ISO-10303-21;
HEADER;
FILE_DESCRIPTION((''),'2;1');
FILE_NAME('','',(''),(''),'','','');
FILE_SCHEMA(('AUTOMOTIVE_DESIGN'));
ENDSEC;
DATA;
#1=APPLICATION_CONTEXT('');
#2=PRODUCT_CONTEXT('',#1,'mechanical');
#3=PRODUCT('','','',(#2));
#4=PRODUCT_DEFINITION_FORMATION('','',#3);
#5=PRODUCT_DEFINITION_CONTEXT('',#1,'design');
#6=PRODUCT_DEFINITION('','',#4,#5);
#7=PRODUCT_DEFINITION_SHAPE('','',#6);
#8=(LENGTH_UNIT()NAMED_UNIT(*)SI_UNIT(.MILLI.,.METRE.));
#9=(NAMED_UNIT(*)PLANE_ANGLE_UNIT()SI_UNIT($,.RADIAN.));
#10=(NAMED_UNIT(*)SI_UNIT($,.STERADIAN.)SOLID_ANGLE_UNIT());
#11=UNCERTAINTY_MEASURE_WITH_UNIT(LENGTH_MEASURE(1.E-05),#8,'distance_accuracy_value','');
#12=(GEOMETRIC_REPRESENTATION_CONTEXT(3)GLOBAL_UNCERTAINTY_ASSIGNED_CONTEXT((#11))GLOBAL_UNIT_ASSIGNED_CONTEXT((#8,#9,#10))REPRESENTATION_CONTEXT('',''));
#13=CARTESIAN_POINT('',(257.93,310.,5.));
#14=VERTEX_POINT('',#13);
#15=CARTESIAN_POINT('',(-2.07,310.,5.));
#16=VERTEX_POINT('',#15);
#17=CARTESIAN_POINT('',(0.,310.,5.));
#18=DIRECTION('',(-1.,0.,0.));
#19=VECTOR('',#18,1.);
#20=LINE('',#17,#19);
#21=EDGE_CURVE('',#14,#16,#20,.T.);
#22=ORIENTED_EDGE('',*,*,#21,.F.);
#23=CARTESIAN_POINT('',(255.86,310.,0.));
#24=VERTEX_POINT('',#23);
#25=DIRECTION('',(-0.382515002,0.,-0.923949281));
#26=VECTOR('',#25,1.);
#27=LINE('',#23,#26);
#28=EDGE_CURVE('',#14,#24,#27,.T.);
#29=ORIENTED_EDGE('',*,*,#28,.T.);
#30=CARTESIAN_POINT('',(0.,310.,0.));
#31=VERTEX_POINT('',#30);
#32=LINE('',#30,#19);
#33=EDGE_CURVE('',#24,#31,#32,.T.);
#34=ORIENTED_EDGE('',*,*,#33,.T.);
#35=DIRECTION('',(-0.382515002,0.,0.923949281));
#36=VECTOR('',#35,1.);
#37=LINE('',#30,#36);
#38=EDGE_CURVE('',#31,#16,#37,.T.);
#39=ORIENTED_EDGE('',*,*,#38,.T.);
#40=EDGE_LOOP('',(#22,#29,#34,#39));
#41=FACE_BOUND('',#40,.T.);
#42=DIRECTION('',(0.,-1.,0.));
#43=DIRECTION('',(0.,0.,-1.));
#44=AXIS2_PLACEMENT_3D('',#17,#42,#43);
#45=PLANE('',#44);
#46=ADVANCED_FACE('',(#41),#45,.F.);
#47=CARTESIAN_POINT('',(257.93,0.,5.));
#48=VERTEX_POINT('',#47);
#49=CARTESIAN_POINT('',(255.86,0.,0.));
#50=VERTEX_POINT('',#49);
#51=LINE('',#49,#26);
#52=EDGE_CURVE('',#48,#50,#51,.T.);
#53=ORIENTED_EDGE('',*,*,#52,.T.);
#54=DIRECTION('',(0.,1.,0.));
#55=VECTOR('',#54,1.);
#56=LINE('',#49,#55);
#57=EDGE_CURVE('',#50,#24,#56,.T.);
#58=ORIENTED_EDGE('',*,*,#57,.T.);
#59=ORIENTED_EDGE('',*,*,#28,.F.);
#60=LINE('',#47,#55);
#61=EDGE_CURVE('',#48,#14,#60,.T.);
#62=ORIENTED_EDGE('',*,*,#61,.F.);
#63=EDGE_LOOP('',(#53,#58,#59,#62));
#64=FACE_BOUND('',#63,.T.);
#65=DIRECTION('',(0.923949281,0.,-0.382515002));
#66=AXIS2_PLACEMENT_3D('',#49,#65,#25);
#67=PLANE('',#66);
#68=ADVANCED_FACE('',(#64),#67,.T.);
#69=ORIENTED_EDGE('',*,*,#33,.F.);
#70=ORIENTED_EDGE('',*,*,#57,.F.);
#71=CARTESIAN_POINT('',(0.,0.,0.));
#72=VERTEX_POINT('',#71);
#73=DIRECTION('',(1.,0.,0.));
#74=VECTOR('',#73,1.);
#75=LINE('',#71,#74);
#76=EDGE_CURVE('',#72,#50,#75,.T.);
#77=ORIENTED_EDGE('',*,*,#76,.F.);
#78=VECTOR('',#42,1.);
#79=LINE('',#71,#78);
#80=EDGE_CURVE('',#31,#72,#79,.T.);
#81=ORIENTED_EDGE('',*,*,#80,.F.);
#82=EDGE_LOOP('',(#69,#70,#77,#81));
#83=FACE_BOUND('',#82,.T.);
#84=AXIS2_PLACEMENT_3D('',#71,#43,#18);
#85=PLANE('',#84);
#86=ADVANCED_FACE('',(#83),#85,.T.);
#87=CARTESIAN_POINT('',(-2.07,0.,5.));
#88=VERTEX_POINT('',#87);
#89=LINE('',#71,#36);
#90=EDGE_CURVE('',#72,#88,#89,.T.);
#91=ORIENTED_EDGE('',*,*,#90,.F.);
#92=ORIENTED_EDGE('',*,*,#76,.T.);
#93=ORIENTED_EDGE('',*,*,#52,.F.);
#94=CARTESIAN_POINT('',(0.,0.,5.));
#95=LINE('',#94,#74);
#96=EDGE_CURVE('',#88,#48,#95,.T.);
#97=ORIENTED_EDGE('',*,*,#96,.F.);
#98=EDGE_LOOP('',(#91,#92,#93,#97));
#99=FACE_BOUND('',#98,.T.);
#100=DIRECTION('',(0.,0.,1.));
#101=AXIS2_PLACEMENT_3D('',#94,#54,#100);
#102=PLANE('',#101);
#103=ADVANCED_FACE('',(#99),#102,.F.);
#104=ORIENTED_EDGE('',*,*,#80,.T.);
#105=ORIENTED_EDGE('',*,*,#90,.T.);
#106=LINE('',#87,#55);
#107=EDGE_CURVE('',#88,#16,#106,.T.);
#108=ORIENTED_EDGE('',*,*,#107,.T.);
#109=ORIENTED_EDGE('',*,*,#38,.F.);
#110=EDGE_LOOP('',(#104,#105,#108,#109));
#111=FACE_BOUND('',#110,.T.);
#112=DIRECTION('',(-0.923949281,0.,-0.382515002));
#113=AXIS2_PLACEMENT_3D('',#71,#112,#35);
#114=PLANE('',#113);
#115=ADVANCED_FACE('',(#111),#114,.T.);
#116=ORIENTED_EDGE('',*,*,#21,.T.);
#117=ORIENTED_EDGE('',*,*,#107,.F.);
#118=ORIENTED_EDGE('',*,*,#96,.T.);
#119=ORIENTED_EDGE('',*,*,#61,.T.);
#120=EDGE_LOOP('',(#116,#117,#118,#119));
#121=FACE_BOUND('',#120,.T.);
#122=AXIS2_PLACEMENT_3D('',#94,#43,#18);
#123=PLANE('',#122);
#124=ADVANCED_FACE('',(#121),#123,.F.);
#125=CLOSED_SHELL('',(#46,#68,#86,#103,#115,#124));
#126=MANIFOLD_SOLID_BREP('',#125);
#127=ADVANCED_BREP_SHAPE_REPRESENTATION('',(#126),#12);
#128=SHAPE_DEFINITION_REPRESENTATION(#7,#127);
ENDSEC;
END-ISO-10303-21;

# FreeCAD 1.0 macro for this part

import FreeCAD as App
import Part
import Sketcher

V = App.Vector

doc = App.newDocument("Part")
params = doc.addObject("Spreadsheet::Sheet", "Params")
for row, (alias, value) in enumerate([
    ("sketch1_height", "310 mm"),
    ("sketch1_width", "255.86 mm"),
    ("pad1_length", "5 mm"),
    ("sketch2_width", "260 mm"),
    ("sketch2_width2", "255.86 mm"),
    ("pad2_length", "310 mm"),
], start=1):
    params.set(f"A{row}", alias)
    params.set(f"B{row}", "=" + value)
    params.setAlias(f"B{row}", alias)

body = doc.addObject("PartDesign::Body", "Body")

sketch1 = body.newObject("Sketcher::SketchObject", "Sketch")
sketch1.AttachmentSupport = (doc.getObject("XY_Plane"), [""])
sketch1.MapMode = "FlatFace"
sketch1.addGeometry([
    Part.LineSegment(V(0, 310, 0), V(0, 0, 0)),
    Part.LineSegment(V(0, 0, 0), V(256, 0, 0)),
    Part.LineSegment(V(256, 0, 0), V(256, 310, 0)),
    Part.LineSegment(V(256, 310, 0), V(0, 310, 0)),
], False)
sketch1.addConstraint([
    Sketcher.Constraint("Coincident", 0, 2, 1, 1),
    Sketcher.Constraint("Coincident", 1, 2, 2, 1),
    Sketcher.Constraint("Coincident", 2, 2, 3, 1),
    Sketcher.Constraint("Coincident", 3, 2, 0, 1),
    Sketcher.Constraint("Vertical", 0),
    Sketcher.Constraint("Horizontal", 1),
    Sketcher.Constraint("Vertical", 2),
    Sketcher.Constraint("Horizontal", 3),
    Sketcher.Constraint("Coincident", 0, 2, -1, 1),
    Sketcher.Constraint("DistanceY", 0, 2, 0, 1, 310.0),
    Sketcher.Constraint("DistanceX", 1, 1, 1, 2, 255.86),
])
sketch1.setExpression("Constraints[9]", "Params.sketch1_height")
sketch1.setExpression("Constraints[10]", "Params.sketch1_width")
pad1 = body.newObject("PartDesign::Pad", "Pad")
pad1.Profile = sketch1
pad1.setExpression("Length", "Params.pad1_length")

sketch2 = body.newObject("Sketcher::SketchObject", "Sketch001")
sketch2.AttachmentSupport = (doc.getObject("XZ_Plane"), [""])
sketch2.MapMode = "FlatFace"
sketch2.AttachmentOffset = App.Placement(V(0, 0, -310), App.Rotation())
sketch2.addGeometry([
    Part.LineSegment(V(-2, 5, 0), V(258, 5, 0)),
    Part.LineSegment(V(258, 5, 0), V(256, 0, 0)),
    Part.LineSegment(V(256, 0, 0), V(0, 0, 0)),
    Part.LineSegment(V(0, 0, 0), V(-2, 5, 0)),
], False)
sketch2.addConstraint([
    Sketcher.Constraint("Coincident", 0, 2, 1, 1),
    Sketcher.Constraint("Coincident", 1, 2, 2, 1),
    Sketcher.Constraint("Coincident", 2, 2, 3, 1),
    Sketcher.Constraint("Coincident", 3, 2, 0, 1),
    Sketcher.Constraint("Horizontal", 0),
    Sketcher.Constraint("Horizontal", 2),
    Sketcher.Constraint("Coincident", 2, 2, -1, 1),
    Sketcher.Constraint("Equal", 1, 3),
    Sketcher.Constraint("DistanceX", 0, 1, 0, 2, 260.0),
    Sketcher.Constraint("DistanceY", -1, 1, 0, 2, 5.0),
    Sketcher.Constraint("DistanceX", 2, 2, 2, 1, 255.86),
])
sketch2.setExpression("Constraints[8]", "Params.sketch2_width")
sketch2.setExpression("Constraints[10]", "Params.sketch2_width2")
pad2 = body.newObject("PartDesign::Pad", "Pad001")
pad2.Profile = sketch2
pad2.setExpression("Length", "Params.pad2_length")

doc.recompute()
